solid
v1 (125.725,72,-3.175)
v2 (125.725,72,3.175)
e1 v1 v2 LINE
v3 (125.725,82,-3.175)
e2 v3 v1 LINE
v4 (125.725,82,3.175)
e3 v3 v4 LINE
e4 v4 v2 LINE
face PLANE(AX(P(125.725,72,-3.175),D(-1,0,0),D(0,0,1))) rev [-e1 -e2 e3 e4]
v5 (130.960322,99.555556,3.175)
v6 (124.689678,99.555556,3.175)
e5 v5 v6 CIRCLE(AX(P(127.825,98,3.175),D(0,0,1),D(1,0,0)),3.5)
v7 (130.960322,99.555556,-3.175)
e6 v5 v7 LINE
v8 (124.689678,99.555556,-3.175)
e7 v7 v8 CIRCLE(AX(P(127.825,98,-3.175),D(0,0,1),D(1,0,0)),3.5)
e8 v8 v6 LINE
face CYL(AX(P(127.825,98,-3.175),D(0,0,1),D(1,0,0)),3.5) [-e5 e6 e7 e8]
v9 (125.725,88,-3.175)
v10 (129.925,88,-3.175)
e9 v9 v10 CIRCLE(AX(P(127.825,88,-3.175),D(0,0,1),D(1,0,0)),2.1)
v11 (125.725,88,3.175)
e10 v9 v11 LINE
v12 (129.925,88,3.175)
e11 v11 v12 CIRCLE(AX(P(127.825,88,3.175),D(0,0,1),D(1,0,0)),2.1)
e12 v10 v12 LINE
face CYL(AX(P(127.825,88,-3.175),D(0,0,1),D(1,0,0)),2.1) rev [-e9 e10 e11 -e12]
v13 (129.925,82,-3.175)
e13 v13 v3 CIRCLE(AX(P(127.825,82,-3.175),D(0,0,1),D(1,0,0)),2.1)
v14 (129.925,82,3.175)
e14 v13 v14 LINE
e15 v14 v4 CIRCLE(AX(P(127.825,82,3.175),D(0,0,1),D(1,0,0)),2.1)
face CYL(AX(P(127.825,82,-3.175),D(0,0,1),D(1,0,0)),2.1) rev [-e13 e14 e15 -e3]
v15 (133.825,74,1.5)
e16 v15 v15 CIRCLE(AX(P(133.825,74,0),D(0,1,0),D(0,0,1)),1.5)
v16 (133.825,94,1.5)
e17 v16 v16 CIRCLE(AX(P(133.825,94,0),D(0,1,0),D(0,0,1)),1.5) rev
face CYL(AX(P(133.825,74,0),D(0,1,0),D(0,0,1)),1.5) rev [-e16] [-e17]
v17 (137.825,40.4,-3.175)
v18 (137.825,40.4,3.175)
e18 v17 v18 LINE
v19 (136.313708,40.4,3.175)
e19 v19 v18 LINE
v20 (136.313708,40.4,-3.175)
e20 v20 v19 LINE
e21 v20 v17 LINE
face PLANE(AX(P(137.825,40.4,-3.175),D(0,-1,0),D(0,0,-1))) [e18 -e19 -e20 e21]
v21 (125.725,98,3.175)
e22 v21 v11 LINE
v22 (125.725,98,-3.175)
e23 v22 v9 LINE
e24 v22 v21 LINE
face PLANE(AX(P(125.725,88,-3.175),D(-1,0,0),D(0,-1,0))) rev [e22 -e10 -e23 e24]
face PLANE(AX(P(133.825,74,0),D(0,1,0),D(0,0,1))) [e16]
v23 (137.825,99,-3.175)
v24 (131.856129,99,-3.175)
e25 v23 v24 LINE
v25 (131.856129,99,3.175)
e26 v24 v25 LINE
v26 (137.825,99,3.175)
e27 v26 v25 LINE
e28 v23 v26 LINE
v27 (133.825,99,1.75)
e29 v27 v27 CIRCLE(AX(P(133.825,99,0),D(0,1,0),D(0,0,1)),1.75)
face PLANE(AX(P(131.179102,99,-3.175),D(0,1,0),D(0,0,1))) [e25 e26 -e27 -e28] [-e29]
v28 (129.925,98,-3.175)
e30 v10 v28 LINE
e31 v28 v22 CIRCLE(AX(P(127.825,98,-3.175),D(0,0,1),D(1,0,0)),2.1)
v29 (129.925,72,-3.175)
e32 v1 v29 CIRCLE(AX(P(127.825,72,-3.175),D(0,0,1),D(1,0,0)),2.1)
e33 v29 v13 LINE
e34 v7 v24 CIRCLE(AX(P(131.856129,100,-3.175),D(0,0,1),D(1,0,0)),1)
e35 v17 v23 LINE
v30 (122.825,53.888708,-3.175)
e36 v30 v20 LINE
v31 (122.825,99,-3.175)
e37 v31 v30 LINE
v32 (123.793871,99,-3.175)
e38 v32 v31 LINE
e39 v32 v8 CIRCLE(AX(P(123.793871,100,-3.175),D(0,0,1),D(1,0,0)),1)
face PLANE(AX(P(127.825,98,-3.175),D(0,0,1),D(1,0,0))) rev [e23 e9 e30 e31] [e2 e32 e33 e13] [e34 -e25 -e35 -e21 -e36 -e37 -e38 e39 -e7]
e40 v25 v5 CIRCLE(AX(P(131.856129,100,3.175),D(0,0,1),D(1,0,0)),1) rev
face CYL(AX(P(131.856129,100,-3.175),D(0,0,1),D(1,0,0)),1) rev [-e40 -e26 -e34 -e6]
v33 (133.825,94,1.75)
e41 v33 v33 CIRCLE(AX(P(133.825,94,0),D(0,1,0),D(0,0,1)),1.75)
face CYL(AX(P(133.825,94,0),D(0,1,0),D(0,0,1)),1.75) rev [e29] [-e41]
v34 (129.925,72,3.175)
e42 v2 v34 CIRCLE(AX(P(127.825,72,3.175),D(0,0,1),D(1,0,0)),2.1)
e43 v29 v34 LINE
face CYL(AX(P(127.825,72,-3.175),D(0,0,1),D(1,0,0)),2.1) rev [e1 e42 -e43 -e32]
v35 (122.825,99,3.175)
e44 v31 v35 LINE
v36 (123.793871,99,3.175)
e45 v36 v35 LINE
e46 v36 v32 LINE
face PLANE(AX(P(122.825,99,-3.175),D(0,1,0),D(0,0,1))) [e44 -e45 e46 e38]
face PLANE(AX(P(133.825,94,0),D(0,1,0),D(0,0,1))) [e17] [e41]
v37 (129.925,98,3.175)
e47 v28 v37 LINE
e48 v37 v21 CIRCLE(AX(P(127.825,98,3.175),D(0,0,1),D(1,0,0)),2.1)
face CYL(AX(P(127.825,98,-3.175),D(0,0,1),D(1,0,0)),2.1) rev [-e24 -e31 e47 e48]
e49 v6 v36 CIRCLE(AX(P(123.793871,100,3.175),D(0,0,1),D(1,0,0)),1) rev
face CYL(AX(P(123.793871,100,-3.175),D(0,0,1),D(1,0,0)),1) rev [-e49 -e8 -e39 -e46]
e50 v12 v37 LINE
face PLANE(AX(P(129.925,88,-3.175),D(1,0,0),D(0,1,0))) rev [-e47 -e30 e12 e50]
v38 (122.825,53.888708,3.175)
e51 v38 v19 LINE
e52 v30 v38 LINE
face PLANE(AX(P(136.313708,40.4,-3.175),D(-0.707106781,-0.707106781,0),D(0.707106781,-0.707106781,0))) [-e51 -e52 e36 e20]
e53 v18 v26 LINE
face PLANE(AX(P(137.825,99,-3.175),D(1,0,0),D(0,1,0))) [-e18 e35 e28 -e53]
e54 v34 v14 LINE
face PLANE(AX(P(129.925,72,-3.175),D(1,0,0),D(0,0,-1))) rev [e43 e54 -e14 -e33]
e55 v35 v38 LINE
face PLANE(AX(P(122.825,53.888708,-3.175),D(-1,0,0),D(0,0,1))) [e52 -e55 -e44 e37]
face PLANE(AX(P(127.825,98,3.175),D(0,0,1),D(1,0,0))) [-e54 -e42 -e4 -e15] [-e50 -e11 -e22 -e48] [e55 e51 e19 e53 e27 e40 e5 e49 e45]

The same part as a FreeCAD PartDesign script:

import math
import FreeCAD as App
import Part
import Sketcher
Q = App.Units.Quantity


def edges_at(feature, points):
    """Names of the edges that pass closest to the given points."""
    edges = feature.Shape.Edges
    near = lambda p: min(range(len(edges)), key=lambda i: edges[i].distToShape(Part.Vertex(*p))[0])
    return sorted({f"Edge{near(p) + 1}" for p in points})

doc = App.newDocument("Part")
body = doc.addObject("PartDesign::Body", "Body")

# Sketch on XY plane
sketch1 = body.newObject("Sketcher::SketchObject", "Sketch")
sketch1.AttachmentSupport = (doc.getObject("XY_Plane"), [""])
sketch1.MapMode = "FlatFace"
sketch1.addGeometry(Part.LineSegment(App.Vector(122.8, 53.9, 0), App.Vector(136.3, 40.4, 0)), False)
sketch1.addGeometry(Part.LineSegment(App.Vector(136.3, 40.4, 0), App.Vector(137.8, 40.4, 0)), False)
sketch1.addGeometry(Part.LineSegment(App.Vector(137.8, 40.4, 0), App.Vector(137.8, 99, 0)), False)
sketch1.addGeometry(Part.LineSegment(App.Vector(137.8, 99, 0), App.Vector(131.2, 99, 0)), False)
sketch1.addGeometry(Part.ArcOfCircle(Part.Circle(App.Vector(127.8, 98, 0), App.Vector(0, 0, 1), 3.5), math.radians(17), math.radians(163)), False)
sketch1.addGeometry(Part.LineSegment(App.Vector(124.5, 99, 0), App.Vector(122.8, 99, 0)), False)
sketch1.addGeometry(Part.LineSegment(App.Vector(122.8, 99, 0), App.Vector(122.8, 53.9, 0)), False)
sketch1.addConstraint(Sketcher.Constraint("Coincident", 0, 2, 1, 1))
sketch1.addConstraint(Sketcher.Constraint("Coincident", 1, 2, 2, 1))
sketch1.addConstraint(Sketcher.Constraint("Coincident", 2, 2, 3, 1))
sketch1.addConstraint(Sketcher.Constraint("Coincident", 3, 2, 4, 1))
sketch1.addConstraint(Sketcher.Constraint("Coincident", 4, 2, 5, 1))
sketch1.addConstraint(Sketcher.Constraint("Coincident", 5, 2, 6, 1))
sketch1.addConstraint(Sketcher.Constraint("Coincident", 6, 2, 0, 1))
sketch1.addConstraint(Sketcher.Constraint("Horizontal", 1))
sketch1.addConstraint(Sketcher.Constraint("Vertical", 2))
sketch1.addConstraint(Sketcher.Constraint("Horizontal", 3))
sketch1.addConstraint(Sketcher.Constraint("Horizontal", 5))
sketch1.addConstraint(Sketcher.Constraint("Vertical", 6))
sketch1.addConstraint(Sketcher.Constraint("Horizontal", 3, 2, 4, 2))
sketch1.addConstraint(Sketcher.Constraint("Radius", 4, 3.5))
sketch1.addConstraint(Sketcher.Constraint("Angle", 0, Q("-45 deg")))
sketch1.addConstraint(Sketcher.Constraint("DistanceY", 2, 1, 2, 2, 58.6))
sketch1.addConstraint(Sketcher.Constraint("DistanceY", -1, 1, 4, 3, 98.0))
sketch1.addConstraint(Sketcher.Constraint("DistanceY", -1, 1, 2, 2, 99.0))
sketch1.addConstraint(Sketcher.Constraint("DistanceX", 4, 3, 1, 2, 10.0))
sketch1.addConstraint(Sketcher.Constraint("DistanceX", 5, 2, 4, 3, 5.0))
sketch1.addConstraint(Sketcher.Constraint("DistanceX", -1, 1, 4, 3, 127.825))
sketch1.addConstraint(Sketcher.Constraint("DistanceX", 1, 1, 1, 2, 1.511292))
pad1 = body.newObject("PartDesign::Pad", "Pad")
pad1.Profile = sketch1
pad1.Type = "TwoLengths"
pad1.Length = 3.175
pad1.Length2 = 3.175

# Sketch on XY plane
sketch2 = body.newObject("Sketcher::SketchObject", "Sketch001")
sketch2.AttachmentSupport = (doc.getObject("XY_Plane"), [""])
sketch2.MapMode = "FlatFace"
sketch2.AttachmentOffset = App.Placement(App.Vector(0, 0, 3.175), App.Rotation())
sketch2.addGeometry(Part.LineSegment(App.Vector(125.7, 82, 0), App.Vector(125.7, 72, 0)), False)
sketch2.addGeometry(Part.ArcOfCircle(Part.Circle(App.Vector(127.8, 72, 0), App.Vector(0, 0, 1), 2.1), math.radians(180), math.radians(360)), False)
sketch2.addGeometry(Part.LineSegment(App.Vector(129.9, 72, 0), App.Vector(129.9, 82, 0)), False)
sketch2.addGeometry(Part.ArcOfCircle(Part.Circle(App.Vector(127.8, 82, 0), App.Vector(0, 0, 1), 2.1), math.radians(0), math.radians(180)), False)
sketch2.addGeometry(Part.LineSegment(App.Vector(125.7, 98, 0), App.Vector(125.7, 88, 0)), False)
sketch2.addGeometry(Part.ArcOfCircle(Part.Circle(App.Vector(127.8, 88, 0), App.Vector(0, 0, 1), 2.1), math.radians(180), math.radians(360)), False)
sketch2.addGeometry(Part.LineSegment(App.Vector(129.9, 88, 0), App.Vector(129.9, 98, 0)), False)
sketch2.addGeometry(Part.ArcOfCircle(Part.Circle(App.Vector(127.8, 98, 0), App.Vector(0, 0, 1), 2.1), math.radians(0), math.radians(180)), False)
sketch2.addConstraint(Sketcher.Constraint("Tangent", 0, 2, 1, 1))
sketch2.addConstraint(Sketcher.Constraint("Tangent", 1, 2, 2, 1))
sketch2.addConstraint(Sketcher.Constraint("Tangent", 2, 2, 3, 1))
sketch2.addConstraint(Sketcher.Constraint("Tangent", 3, 2, 0, 1))
sketch2.addConstraint(Sketcher.Constraint("Tangent", 4, 2, 5, 1))
sketch2.addConstraint(Sketcher.Constraint("Tangent", 5, 2, 6, 1))
sketch2.addConstraint(Sketcher.Constraint("Tangent", 6, 2, 7, 1))
sketch2.addConstraint(Sketcher.Constraint("Tangent", 7, 2, 4, 1))
sketch2.addConstraint(Sketcher.Constraint("Vertical", 0))
sketch2.addConstraint(Sketcher.Constraint("Vertical", 2))
sketch2.addConstraint(Sketcher.Constraint("Vertical", 4))
sketch2.addConstraint(Sketcher.Constraint("Vertical", 6))
sketch2.addConstraint(Sketcher.Constraint("Equal", 3, 5))
sketch2.addConstraint(Sketcher.Constraint("Vertical", 3, 3, 5, 3))
sketch2.addConstraint(Sketcher.Constraint("Equal", 2, 4))
sketch2.addConstraint(Sketcher.Constraint("Radius", 1, 2.1))
sketch2.addConstraint(Sketcher.Constraint("DistanceY", 0, 2, 0, 1, 10.0))
sketch2.addConstraint(Sketcher.Constraint("DistanceY", -1, 1, 1, 3, 72.0))
sketch2.addConstraint(Sketcher.Constraint("DistanceY", -1, 1, 5, 3, 88.0))
sketch2.addConstraint(Sketcher.Constraint("DistanceX", -1, 1, 1, 3, 127.825))
pocket1 = body.newObject("PartDesign::Pocket", "Pocket")
pocket1.Profile = sketch2
pocket1.Type = "ThroughAll"

# Sketch on XZ plane
sketch3 = body.newObject("Sketcher::SketchObject", "Sketch002")
sketch3.AttachmentSupport = (doc.getObject("XZ_Plane"), [""])
sketch3.MapMode = "FlatFace"
sketch3.AttachmentOffset = App.Placement(App.Vector(0, 0, -99), App.Rotation())
sketch3.addGeometry(Part.Circle(App.Vector(133.8, 0, 0), App.Vector(0, 0, 1), 1.5), False)
sketch3.addConstraint(Sketcher.Constraint("PointOnObject", 0, 3, -1))
sketch3.addConstraint(Sketcher.Constraint("Diameter", 0, 3.0))
sketch3.addConstraint(Sketcher.Constraint("DistanceX", -1, 1, 0, 3, 133.825))
pocket2 = body.newObject("PartDesign::Pocket", "Pocket001")
pocket2.Profile = sketch3
pocket2.Length = 25
pocket2.Reversed = True

# Sketch on XZ plane
sketch4 = body.newObject("Sketcher::SketchObject", "Sketch003")
sketch4.AttachmentSupport = (doc.getObject("XZ_Plane"), [""])
sketch4.MapMode = "FlatFace"
sketch4.AttachmentOffset = App.Placement(App.Vector(0, 0, -99), App.Rotation())
sketch4.addGeometry(Part.Circle(App.Vector(133.8, 0, 0), App.Vector(0, 0, 1), 1.8), False)
sketch4.addConstraint(Sketcher.Constraint("PointOnObject", 0, 3, -1))
sketch4.addConstraint(Sketcher.Constraint("Diameter", 0, 3.5))
sketch4.addConstraint(Sketcher.Constraint("DistanceX", -1, 1, 0, 3, 133.825))
pocket3 = body.newObject("PartDesign::Pocket", "Pocket002")
pocket3.Profile = sketch4
pocket3.Length = 5
pocket3.Reversed = True
doc.recompute()

fillet = body.newObject("PartDesign::Fillet", "Fillet")
fillet.Base = (pocket3, edges_at(pocket3, [(124.471, 99, 0), (131.179, 99, 0)]))
fillet.Radius = 1

doc.recompute()
